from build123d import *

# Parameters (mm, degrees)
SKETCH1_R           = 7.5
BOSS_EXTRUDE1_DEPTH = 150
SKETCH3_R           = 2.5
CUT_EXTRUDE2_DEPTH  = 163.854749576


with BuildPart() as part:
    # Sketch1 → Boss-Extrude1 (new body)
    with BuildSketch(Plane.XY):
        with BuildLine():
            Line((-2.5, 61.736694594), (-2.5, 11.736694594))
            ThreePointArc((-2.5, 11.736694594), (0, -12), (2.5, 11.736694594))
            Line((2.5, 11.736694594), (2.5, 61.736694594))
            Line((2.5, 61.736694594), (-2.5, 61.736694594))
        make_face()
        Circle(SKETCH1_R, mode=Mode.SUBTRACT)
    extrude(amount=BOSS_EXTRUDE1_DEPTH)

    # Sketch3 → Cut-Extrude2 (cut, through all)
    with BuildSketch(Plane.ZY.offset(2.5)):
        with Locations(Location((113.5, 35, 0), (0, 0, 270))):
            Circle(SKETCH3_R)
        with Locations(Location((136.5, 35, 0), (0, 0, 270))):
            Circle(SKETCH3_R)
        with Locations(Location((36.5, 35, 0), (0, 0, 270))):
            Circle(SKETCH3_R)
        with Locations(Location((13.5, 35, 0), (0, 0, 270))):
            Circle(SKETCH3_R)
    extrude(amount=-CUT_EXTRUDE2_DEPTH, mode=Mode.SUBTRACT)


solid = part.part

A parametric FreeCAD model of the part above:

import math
import FreeCAD as App
import Part
import Sketcher

V = App.Vector

doc = App.newDocument("Part")
body = doc.addObject("PartDesign::Body", "Body")

# Sketch on XY plane
sketch1 = body.newObject("Sketcher::SketchObject", "Sketch")
sketch1.AttachmentSupport = (doc.getObject("XY_Plane"), [""])
sketch1.MapMode = "FlatFace"
sketch1.addGeometry([
    Part.LineSegment(V(-2.5, 61.736695, 0), V(-2.5, 11.736695, 0)),  # 0
    Part.ArcOfCircle(Part.Circle(V(0, 0, 0), V(0, 0, 1), 12), math.radians(102.024699), math.radians(437.975301)),  # 1
    Part.LineSegment(V(2.5, 11.736695, 0), V(2.5, 61.736695, 0)),  # 2
    Part.LineSegment(V(2.5, 61.736695, 0), V(-2.5, 61.736695, 0)),  # 3
    Part.Circle(V(0, 0, 0), V(0, 0, 1), 7.5),  # 4
], False)
sketch1.addConstraint([
    Sketcher.Constraint("Coincident", 0, 2, 1, 1),
    Sketcher.Constraint("Coincident", 1, 2, 2, 1),
    Sketcher.Constraint("Coincident", 2, 2, 3, 1),
    Sketcher.Constraint("Coincident", 3, 2, 0, 1),
    Sketcher.Constraint("Vertical", 0),
    Sketcher.Constraint("Vertical", 2),
    Sketcher.Constraint("Horizontal", 3),
    Sketcher.Constraint("Coincident", 1, 3, -1, 1),
    Sketcher.Constraint("Coincident", 4, 3, -1, 1),
    Sketcher.Constraint("Horizontal", 0, 2, 1, 2),
    Sketcher.Constraint("Diameter", 4, 15.0),
    Sketcher.Constraint("Radius", 1, 12.0),
    Sketcher.Constraint("DistanceX", 3, 2, 3, 1, 5.0),
    Sketcher.Constraint("DistanceY", 0, 2, 0, 1, 50.0),
])
pad1 = body.newObject("PartDesign::Pad", "Pad")
pad1.Profile = sketch1
pad1.Length = 150

# Sketch on YZ plane
sketch2 = body.newObject("Sketcher::SketchObject", "Sketch001")
sketch2.AttachmentSupport = (doc.getObject("YZ_Plane"), [""])
sketch2.MapMode = "FlatFace"
sketch2.AttachmentOffset = App.Placement(V(0, 0, -2.5), App.Rotation())
sketch2.addGeometry([
    Part.Circle(V(35, 113.5, 0), V(0, 0, 1), 2.5),
    Part.Circle(V(35, 136.5, 0), V(0, 0, 1), 2.5),
    Part.Circle(V(35, 36.5, 0), V(0, 0, 1), 2.5),
    Part.Circle(V(35, 13.5, 0), V(0, 0, 1), 2.5),
], False)
sketch2.addConstraint([
    Sketcher.Constraint("Equal", 0, 1),
    Sketcher.Constraint("Equal", 1, 2),
    Sketcher.Constraint("Equal", 2, 3),
    Sketcher.Constraint("Vertical", 0, 3, 1, 3),
    Sketcher.Constraint("Vertical", 1, 3, 2, 3),
    Sketcher.Constraint("Vertical", 2, 3, 3, 3),
    Sketcher.Constraint("Diameter", 0, 5.0),
    Sketcher.Constraint("DistanceX", -1, 1, 0, 3, 35.0),
    Sketcher.Constraint("DistanceY", 0, 3, 1, 3, 23.0),
    Sketcher.Constraint("DistanceY", 2, 3, 0, 3, 77.0),
    Sketcher.Constraint("DistanceY", 3, 3, 2, 3, 23.0),
    Sketcher.Constraint("DistanceY", -1, 1, 0, 3, 113.5),
])
pocket1 = body.newObject("PartDesign::Pocket", "Pocket")
pocket1.Profile = sketch2
pocket1.Type = "ThroughAll"
pocket1.Reversed = True

doc.recompute()
